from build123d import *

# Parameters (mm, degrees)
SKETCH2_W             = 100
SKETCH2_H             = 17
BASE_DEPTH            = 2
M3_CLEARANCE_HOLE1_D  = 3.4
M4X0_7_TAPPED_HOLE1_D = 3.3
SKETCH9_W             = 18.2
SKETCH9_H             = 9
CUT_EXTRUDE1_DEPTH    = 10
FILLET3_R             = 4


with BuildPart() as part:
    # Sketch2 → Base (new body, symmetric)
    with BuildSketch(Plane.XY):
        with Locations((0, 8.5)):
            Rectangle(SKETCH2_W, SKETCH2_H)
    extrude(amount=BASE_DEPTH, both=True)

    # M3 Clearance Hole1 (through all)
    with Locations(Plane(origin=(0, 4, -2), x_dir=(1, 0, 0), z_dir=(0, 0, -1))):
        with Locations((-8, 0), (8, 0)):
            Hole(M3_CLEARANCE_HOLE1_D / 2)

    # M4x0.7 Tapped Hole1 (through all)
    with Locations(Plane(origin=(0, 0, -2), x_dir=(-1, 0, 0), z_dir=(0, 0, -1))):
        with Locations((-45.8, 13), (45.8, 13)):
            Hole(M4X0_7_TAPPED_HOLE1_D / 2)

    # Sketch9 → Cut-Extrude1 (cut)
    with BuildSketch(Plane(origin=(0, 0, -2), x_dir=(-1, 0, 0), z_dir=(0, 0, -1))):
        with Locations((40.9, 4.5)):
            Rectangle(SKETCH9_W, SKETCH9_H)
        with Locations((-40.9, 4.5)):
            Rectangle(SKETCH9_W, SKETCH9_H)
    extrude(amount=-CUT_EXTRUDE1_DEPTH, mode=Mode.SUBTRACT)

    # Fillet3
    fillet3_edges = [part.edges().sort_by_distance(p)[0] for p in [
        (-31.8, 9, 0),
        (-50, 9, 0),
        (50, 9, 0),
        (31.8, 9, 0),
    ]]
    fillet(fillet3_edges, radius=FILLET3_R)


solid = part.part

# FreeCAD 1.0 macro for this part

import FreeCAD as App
import Part
import Sketcher

V = App.Vector
Q = App.Units.Quantity


def edges_at(feature, points):
    """Names of the edges that pass closest to the given points."""
    edges = feature.Shape.Edges
    near = lambda p: min(range(len(edges)), key=lambda i: edges[i].distToShape(Part.Vertex(*p))[0])
    return sorted({f"Edge{near(p) + 1}" for p in points})

doc = App.newDocument("Part")
body = doc.addObject("PartDesign::Body", "Body")

# Sketch on XY plane
sketch1 = body.newObject("Sketcher::SketchObject", "Sketch")
sketch1.AttachmentSupport = (doc.getObject("XY_Plane"), [""])
sketch1.MapMode = "FlatFace"
sketch1.addGeometry([
    Part.LineSegment(V(-50, 17, 0), V(-50, 0, 0)),
    Part.LineSegment(V(-50, 0, 0), V(50, 0, 0)),
    Part.LineSegment(V(50, 0, 0), V(50, 17, 0)),
    Part.LineSegment(V(50, 17, 0), V(-50, 17, 0)),
], False)
sketch1.addConstraint([
    Sketcher.Constraint("Coincident", 0, 2, 1, 1),
    Sketcher.Constraint("Coincident", 1, 2, 2, 1),
    Sketcher.Constraint("Coincident", 2, 2, 3, 1),
    Sketcher.Constraint("Coincident", 3, 2, 0, 1),
    Sketcher.Constraint("Vertical", 0),
    Sketcher.Constraint("Horizontal", 1),
    Sketcher.Constraint("Vertical", 2),
    Sketcher.Constraint("Horizontal", 3),
    Sketcher.Constraint("Symmetric", 0, 2, 1, 2, -1, 1),
    Sketcher.Constraint("DistanceX", 1, 1, 1, 2, Q("100 mm")),
    Sketcher.Constraint("DistanceY", 0, 2, 0, 1, Q("17 mm")),
])
pad1 = body.newObject("PartDesign::Pad", "Pad")
pad1.Profile = sketch1
pad1.Length = 4
pad1.Midplane = True

# Sketch on XY plane
sketch2 = body.newObject("Sketcher::SketchObject", "Sketch001")
sketch2.AttachmentSupport = (doc.getObject("XY_Plane"), [""])
sketch2.MapMode = "FlatFace"
sketch2.AttachmentOffset = App.Placement(V(0, 0, -2), App.Rotation())
sketch2.addGeometry([
    Part.Circle(V(-8, 4, 0), V(0, 0, 1), 1.7),
    Part.Circle(V(8, 4, 0), V(0, 0, 1), 1.7),
], False)
sketch2.addConstraint([
    Sketcher.Constraint("Equal", 0, 1),
    Sketcher.Constraint("Symmetric", 0, 3, 1, 3, -2),
    Sketcher.Constraint("Diameter", 0, Q("3.4 mm")),
    Sketcher.Constraint("DistanceX", 0, 3, -1, 1, Q("8 mm")),
    Sketcher.Constraint("DistanceY", -1, 1, 0, 3, Q("4 mm")),
])
doc.recompute()
hole = body.newObject("PartDesign::Hole", "Hole")
hole.Profile = sketch2
hole.ThreadType = "None"
hole.Diameter = 3.4
hole.DepthType = "ThroughAll"
hole.Reversed = True

# Sketch on XY plane
sketch3 = body.newObject("Sketcher::SketchObject", "Sketch002")
sketch3.AttachmentSupport = (doc.getObject("XY_Plane"), [""])
sketch3.MapMode = "FlatFace"
sketch3.AttachmentOffset = App.Placement(V(0, 0, -2), App.Rotation())
sketch3.addGeometry([
    Part.Circle(V(45.8, 13, 0), V(0, 0, 1), 1.6),
    Part.Circle(V(-45.8, 13, 0), V(0, 0, 1), 1.6),
], False)
sketch3.addConstraint([
    Sketcher.Constraint("Equal", 0, 1),
    Sketcher.Constraint("Symmetric", 0, 3, 1, 3, -2),
    Sketcher.Constraint("Diameter", 0, Q("3.3 mm")),
    Sketcher.Constraint("DistanceY", -1, 1, 0, 3, Q("13 mm")),
    Sketcher.Constraint("DistanceX", -1, 1, 0, 3, Q("45.8 mm")),
])
doc.recompute()
hole2 = body.newObject("PartDesign::Hole", "Hole001")
hole2.Profile = sketch3
hole2.ThreadType = "None"
hole2.Diameter = 3.3
hole2.DepthType = "ThroughAll"
hole2.Reversed = True

# Sketch on XY plane
sketch4 = body.newObject("Sketcher::SketchObject", "Sketch003")
sketch4.AttachmentSupport = (doc.getObject("XY_Plane"), [""])
sketch4.MapMode = "FlatFace"
sketch4.AttachmentOffset = App.Placement(V(0, 0, -2), App.Rotation())
sketch4.addGeometry([
    Part.LineSegment(V(-32, 9, 0), V(-32, 0, 0)),  # 0
    Part.LineSegment(V(-32, 0, 0), V(-50, 0, 0)),  # 1
    Part.LineSegment(V(-50, 0, 0), V(-50, 9, 0)),  # 2
    Part.LineSegment(V(-50, 9, 0), V(-32, 9, 0)),  # 3
    Part.LineSegment(V(50, 9, 0), V(50, 0, 0)),  # 4
    Part.LineSegment(V(50, 0, 0), V(32, 0, 0)),  # 5
    Part.LineSegment(V(32, 0, 0), V(32, 9, 0)),  # 6
    Part.LineSegment(V(32, 9, 0), V(50, 9, 0)),  # 7
], False)
sketch4.addConstraint([
    Sketcher.Constraint("Coincident", 0, 2, 1, 1),
    Sketcher.Constraint("Coincident", 1, 2, 2, 1),
    Sketcher.Constraint("Coincident", 2, 2, 3, 1),
    Sketcher.Constraint("Coincident", 3, 2, 0, 1),
    Sketcher.Constraint("Coincident", 4, 2, 5, 1),
    Sketcher.Constraint("Coincident", 5, 2, 6, 1),
    Sketcher.Constraint("Coincident", 6, 2, 7, 1),
    Sketcher.Constraint("Coincident", 7, 2, 4, 1),
    Sketcher.Constraint("Vertical", 0),
    Sketcher.Constraint("Horizontal", 1),
    Sketcher.Constraint("Vertical", 2),
    Sketcher.Constraint("Horizontal", 3),
    Sketcher.Constraint("Vertical", 4),
    Sketcher.Constraint("Horizontal", 5),
    Sketcher.Constraint("Vertical", 6),
    Sketcher.Constraint("Horizontal", 7),
    Sketcher.Constraint("Symmetric", 1, 2, 4, 2, -1, 1),
    Sketcher.Constraint("Symmetric", 0, 2, 5, 2, -2),
    Sketcher.Constraint("Horizontal", 3, 2, 6, 2),
    Sketcher.Constraint("DistanceY", 0, 2, 0, 1, Q("9 mm")),
    Sketcher.Constraint("DistanceX", 1, 2, 1, 1, Q("18.2 mm")),
    Sketcher.Constraint("DistanceX", 1, 2, -1, 1, Q("50 mm")),
])
pocket1 = body.newObject("PartDesign::Pocket", "Pocket")
pocket1.Profile = sketch4
pocket1.Length = 10
pocket1.Reversed = True
doc.recompute()

fillet = body.newObject("PartDesign::Fillet", "Fillet")
fillet.Base = (pocket1, edges_at(pocket1, [
    (-31.8, 9, 0),
    (-50, 9, 0),
    (50, 9, 0),
    (31.8, 9, 0),
]))
fillet.Radius = 4

doc.recompute()
